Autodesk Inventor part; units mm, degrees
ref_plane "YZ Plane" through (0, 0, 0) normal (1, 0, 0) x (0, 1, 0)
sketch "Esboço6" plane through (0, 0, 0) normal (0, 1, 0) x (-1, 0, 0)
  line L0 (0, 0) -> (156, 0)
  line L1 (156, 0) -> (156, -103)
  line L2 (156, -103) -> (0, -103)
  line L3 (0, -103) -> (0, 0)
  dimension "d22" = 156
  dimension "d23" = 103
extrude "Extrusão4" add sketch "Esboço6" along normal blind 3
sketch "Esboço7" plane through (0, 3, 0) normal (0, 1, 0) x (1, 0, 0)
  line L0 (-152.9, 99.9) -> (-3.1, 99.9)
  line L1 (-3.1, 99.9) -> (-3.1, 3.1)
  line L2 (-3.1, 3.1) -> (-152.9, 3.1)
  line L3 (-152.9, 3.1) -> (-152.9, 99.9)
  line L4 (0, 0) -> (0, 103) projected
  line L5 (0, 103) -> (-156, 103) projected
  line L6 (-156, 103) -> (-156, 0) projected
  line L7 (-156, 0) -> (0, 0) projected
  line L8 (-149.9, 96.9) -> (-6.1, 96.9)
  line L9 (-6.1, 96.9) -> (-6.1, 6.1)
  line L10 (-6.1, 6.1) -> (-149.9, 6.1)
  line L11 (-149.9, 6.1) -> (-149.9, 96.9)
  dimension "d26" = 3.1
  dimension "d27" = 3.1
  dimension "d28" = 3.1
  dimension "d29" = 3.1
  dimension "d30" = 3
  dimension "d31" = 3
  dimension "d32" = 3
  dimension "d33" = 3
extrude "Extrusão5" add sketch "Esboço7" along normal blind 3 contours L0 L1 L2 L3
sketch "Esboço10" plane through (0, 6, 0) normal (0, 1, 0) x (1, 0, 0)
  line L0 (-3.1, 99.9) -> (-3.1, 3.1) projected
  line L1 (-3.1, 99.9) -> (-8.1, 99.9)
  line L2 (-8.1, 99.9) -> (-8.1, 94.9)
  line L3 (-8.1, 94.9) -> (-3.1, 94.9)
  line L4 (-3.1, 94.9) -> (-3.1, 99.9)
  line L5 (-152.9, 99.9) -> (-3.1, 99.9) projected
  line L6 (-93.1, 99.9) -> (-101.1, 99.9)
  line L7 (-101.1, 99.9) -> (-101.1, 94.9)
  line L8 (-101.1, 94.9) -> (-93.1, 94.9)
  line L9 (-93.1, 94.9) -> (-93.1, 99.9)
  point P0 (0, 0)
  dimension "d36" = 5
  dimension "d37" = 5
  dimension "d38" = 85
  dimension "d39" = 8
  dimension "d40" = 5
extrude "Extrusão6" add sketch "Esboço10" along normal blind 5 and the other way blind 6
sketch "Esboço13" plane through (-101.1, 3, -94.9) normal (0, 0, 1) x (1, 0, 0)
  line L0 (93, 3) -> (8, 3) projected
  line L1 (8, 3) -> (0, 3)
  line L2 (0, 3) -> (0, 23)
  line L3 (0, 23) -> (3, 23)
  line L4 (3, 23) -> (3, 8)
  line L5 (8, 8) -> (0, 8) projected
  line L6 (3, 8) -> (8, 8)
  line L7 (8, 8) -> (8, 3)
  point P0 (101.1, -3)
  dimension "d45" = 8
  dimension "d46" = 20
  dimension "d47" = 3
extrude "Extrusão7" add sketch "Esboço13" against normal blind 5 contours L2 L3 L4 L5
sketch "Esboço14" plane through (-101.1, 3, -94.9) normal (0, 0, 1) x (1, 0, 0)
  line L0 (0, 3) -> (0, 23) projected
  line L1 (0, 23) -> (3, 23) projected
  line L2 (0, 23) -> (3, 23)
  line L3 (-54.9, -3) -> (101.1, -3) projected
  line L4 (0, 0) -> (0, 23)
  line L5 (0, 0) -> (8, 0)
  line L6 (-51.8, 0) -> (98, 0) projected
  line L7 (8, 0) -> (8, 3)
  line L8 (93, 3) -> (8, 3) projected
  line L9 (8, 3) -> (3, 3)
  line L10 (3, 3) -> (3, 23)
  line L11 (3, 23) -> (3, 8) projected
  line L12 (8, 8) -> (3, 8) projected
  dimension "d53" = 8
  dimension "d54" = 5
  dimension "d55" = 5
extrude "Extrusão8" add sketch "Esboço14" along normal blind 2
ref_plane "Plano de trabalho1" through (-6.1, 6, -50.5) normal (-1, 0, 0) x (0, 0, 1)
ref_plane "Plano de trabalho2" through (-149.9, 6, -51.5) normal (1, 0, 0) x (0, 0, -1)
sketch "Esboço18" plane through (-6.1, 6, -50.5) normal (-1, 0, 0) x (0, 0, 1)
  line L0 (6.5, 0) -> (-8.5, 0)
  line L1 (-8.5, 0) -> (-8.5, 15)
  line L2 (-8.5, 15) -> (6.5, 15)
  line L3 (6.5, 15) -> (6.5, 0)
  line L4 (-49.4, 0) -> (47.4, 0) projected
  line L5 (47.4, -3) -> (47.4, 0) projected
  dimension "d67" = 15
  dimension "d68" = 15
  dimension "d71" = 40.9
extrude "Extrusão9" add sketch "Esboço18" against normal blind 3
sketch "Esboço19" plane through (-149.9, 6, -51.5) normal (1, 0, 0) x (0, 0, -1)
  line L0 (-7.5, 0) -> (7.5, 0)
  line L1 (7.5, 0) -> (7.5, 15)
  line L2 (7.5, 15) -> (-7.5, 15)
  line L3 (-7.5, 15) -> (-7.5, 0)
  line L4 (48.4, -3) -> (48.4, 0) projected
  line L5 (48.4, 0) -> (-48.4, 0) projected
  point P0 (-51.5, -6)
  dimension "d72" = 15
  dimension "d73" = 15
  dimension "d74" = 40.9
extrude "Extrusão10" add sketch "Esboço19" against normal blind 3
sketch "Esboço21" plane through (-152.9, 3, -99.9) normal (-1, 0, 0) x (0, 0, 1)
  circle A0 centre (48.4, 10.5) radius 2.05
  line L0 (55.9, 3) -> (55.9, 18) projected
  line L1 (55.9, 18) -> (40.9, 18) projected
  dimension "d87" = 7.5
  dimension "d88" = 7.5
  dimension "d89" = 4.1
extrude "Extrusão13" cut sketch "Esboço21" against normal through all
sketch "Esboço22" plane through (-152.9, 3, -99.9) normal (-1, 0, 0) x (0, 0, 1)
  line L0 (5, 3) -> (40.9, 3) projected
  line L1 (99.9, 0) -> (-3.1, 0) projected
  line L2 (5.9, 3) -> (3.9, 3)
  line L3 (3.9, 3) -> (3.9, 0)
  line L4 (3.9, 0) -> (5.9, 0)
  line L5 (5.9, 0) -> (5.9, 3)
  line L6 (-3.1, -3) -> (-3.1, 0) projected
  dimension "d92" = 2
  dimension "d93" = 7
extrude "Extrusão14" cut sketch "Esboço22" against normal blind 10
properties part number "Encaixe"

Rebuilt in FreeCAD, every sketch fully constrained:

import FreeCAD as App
import Part
import Sketcher
from FreeCAD import Vector
Q = App.Units.Quantity

doc = App.newDocument("Part")
body = doc.addObject("PartDesign::Body", "Body")

sketch1 = body.newObject("Sketcher::SketchObject", "Sketch")
sketch1.AttachmentSupport = (doc.getObject("XZ_Plane"), [""])
sketch1.MapMode = "FlatFace"
sketch1.addGeometry(Part.LineSegment(Vector(-156, 0, 0), Vector(0, 0, 0)), False)
sketch1.addGeometry(Part.LineSegment(Vector(0, 0, 0), Vector(0, -103, 0)), False)
sketch1.addGeometry(Part.LineSegment(Vector(0, -103, 0), Vector(-156, -103, 0)), False)
sketch1.addGeometry(Part.LineSegment(Vector(-156, -103, 0), Vector(-156, 0, 0)), False)
sketch1.addConstraint(Sketcher.Constraint("Coincident", 0, 2, 1, 1))
sketch1.addConstraint(Sketcher.Constraint("Coincident", 1, 2, 2, 1))
sketch1.addConstraint(Sketcher.Constraint("Coincident", 2, 2, 3, 1))
sketch1.addConstraint(Sketcher.Constraint("Coincident", 3, 2, 0, 1))
sketch1.addConstraint(Sketcher.Constraint("Horizontal", 0))
sketch1.addConstraint(Sketcher.Constraint("Vertical", 1))
sketch1.addConstraint(Sketcher.Constraint("Horizontal", 2))
sketch1.addConstraint(Sketcher.Constraint("Vertical", 3))
sketch1.addConstraint(Sketcher.Constraint("Coincident", 0, 2, -1, 1))
sketch1.addConstraint(Sketcher.Constraint("DistanceX", 0, 1, 0, 2, Q("156 mm")))
sketch1.addConstraint(Sketcher.Constraint("DistanceY", 1, 2, 1, 1, Q("103 mm")))
pad1 = body.newObject("PartDesign::Pad", "Pad")
pad1.Profile = sketch1
pad1.Length = 3
pad1.Reversed = True

sketch2 = body.newObject("Sketcher::SketchObject", "Sketch001")
sketch2.AttachmentSupport = (doc.getObject("XZ_Plane"), [""])
sketch2.MapMode = "FlatFace"
sketch2.AttachmentOffset = App.Placement(Vector(0, 0, -3), App.Rotation())
sketch2.addGeometry(Part.LineSegment(Vector(-3, -100, 0), Vector(-153, -100, 0)), False)
sketch2.addGeometry(Part.LineSegment(Vector(-153, -100, 0), Vector(-153, -3, 0)), False)
sketch2.addGeometry(Part.LineSegment(Vector(-153, -3, 0), Vector(-3, -3, 0)), False)
sketch2.addGeometry(Part.LineSegment(Vector(-3, -3, 0), Vector(-3, -100, 0)), False)
sketch2.addGeometry(Part.LineSegment(Vector(-150, -6, 0), Vector(-150, -97, 0)), False)
sketch2.addGeometry(Part.LineSegment(Vector(-150, -97, 0), Vector(-6, -97, 0)), False)
sketch2.addGeometry(Part.LineSegment(Vector(-6, -97, 0), Vector(-6, -6, 0)), False)
sketch2.addGeometry(Part.LineSegment(Vector(-6, -6, 0), Vector(-150, -6, 0)), False)
sketch2.addConstraint(Sketcher.Constraint("Coincident", 0, 2, 1, 1))
sketch2.addConstraint(Sketcher.Constraint("Coincident", 1, 2, 2, 1))
sketch2.addConstraint(Sketcher.Constraint("Coincident", 2, 2, 3, 1))
sketch2.addConstraint(Sketcher.Constraint("Coincident", 3, 2, 0, 1))
sketch2.addConstraint(Sketcher.Constraint("Coincident", 4, 2, 5, 1))
sketch2.addConstraint(Sketcher.Constraint("Coincident", 5, 2, 6, 1))
sketch2.addConstraint(Sketcher.Constraint("Coincident", 6, 2, 7, 1))
sketch2.addConstraint(Sketcher.Constraint("Coincident", 7, 2, 4, 1))
sketch2.addConstraint(Sketcher.Constraint("Horizontal", 0))
sketch2.addConstraint(Sketcher.Constraint("Vertical", 1))
sketch2.addConstraint(Sketcher.Constraint("Horizontal", 2))
sketch2.addConstraint(Sketcher.Constraint("Vertical", 3))
sketch2.addConstraint(Sketcher.Constraint("Vertical", 4))
sketch2.addConstraint(Sketcher.Constraint("Horizontal", 5))
sketch2.addConstraint(Sketcher.Constraint("Vertical", 6))
sketch2.addConstraint(Sketcher.Constraint("Horizontal", 7))
sketch2.addConstraint(Sketcher.Constraint("DistanceX", 0, 2, 4, 2, Q("3 mm")))
sketch2.addConstraint(Sketcher.Constraint("DistanceY", 0, 2, 4, 2, Q("3 mm")))
sketch2.addConstraint(Sketcher.Constraint("DistanceX", 5, 2, 3, 2, Q("3 mm")))
sketch2.addConstraint(Sketcher.Constraint("DistanceY", 6, 2, 2, 2, Q("3 mm")))
sketch2.addConstraint(Sketcher.Constraint("DistanceY", 1, 2, -1, 1, Q("3.1 mm")))
sketch2.addConstraint(Sketcher.Constraint("DistanceX", 2, 2, -1, 1, Q("3.1 mm")))
sketch2.addConstraint(Sketcher.Constraint("DistanceX", 0, 2, 0, 1, Q("149.8 mm")))
sketch2.addConstraint(Sketcher.Constraint("DistanceY", 1, 1, 1, 2, Q("96.8 mm")))
pad2 = body.newObject("PartDesign::Pad", "Pad001")
pad2.Profile = sketch2
pad2.Length = 3
pad2.Reversed = True

sketch3 = body.newObject("Sketcher::SketchObject", "Sketch002")
sketch3.AttachmentSupport = (doc.getObject("XZ_Plane"), [""])
sketch3.MapMode = "FlatFace"
sketch3.AttachmentOffset = App.Placement(Vector(0, 0, -6), App.Rotation())
sketch3.addGeometry(Part.LineSegment(Vector(-93, -95, 0), Vector(-93, -100, 0)), False)
sketch3.addGeometry(Part.LineSegment(Vector(-93, -100, 0), Vector(-101, -100, 0)), False)
sketch3.addGeometry(Part.LineSegment(Vector(-101, -100, 0), Vector(-101, -95, 0)), False)
sketch3.addGeometry(Part.LineSegment(Vector(-101, -95, 0), Vector(-93, -95, 0)), False)
sketch3.addGeometry(Part.LineSegment(Vector(-3, -95, 0), Vector(-3, -100, 0)), False)
sketch3.addGeometry(Part.LineSegment(Vector(-3, -100, 0), Vector(-8, -100, 0)), False)
sketch3.addGeometry(Part.LineSegment(Vector(-8, -100, 0), Vector(-8, -95, 0)), False)
sketch3.addGeometry(Part.LineSegment(Vector(-8, -95, 0), Vector(-3, -95, 0)), False)
sketch3.addConstraint(Sketcher.Constraint("Coincident", 0, 2, 1, 1))
sketch3.addConstraint(Sketcher.Constraint("Coincident", 1, 2, 2, 1))
sketch3.addConstraint(Sketcher.Constraint("Coincident", 2, 2, 3, 1))
sketch3.addConstraint(Sketcher.Constraint("Coincident", 3, 2, 0, 1))
sketch3.addConstraint(Sketcher.Constraint("Coincident", 4, 2, 5, 1))
sketch3.addConstraint(Sketcher.Constraint("Coincident", 5, 2, 6, 1))
sketch3.addConstraint(Sketcher.Constraint("Coincident", 6, 2, 7, 1))
sketch3.addConstraint(Sketcher.Constraint("Coincident", 7, 2, 4, 1))
sketch3.addConstraint(Sketcher.Constraint("Vertical", 0))
sketch3.addConstraint(Sketcher.Constraint("Horizontal", 1))
sketch3.addConstraint(Sketcher.Constraint("Vertical", 2))
sketch3.addConstraint(Sketcher.Constraint("Horizontal", 3))
sketch3.addConstraint(Sketcher.Constraint("Vertical", 4))
sketch3.addConstraint(Sketcher.Constraint("Horizontal", 5))
sketch3.addConstraint(Sketcher.Constraint("Vertical", 6))
sketch3.addConstraint(Sketcher.Constraint("Horizontal", 7))
sketch3.addConstraint(Sketcher.Constraint("Horizontal", 1, 2, 4, 2))
sketch3.addConstraint(Sketcher.Constraint("Horizontal", 3, 2, 6, 2))
sketch3.addConstraint(Sketcher.Constraint("Equal", 7, 0))
sketch3.addConstraint(Sketcher.Constraint("DistanceX", 1, 2, 1, 1, Q("8 mm")))
sketch3.addConstraint(Sketcher.Constraint("DistanceX", 5, 2, 5, 1, Q("5 mm")))
sketch3.addConstraint(Sketcher.Constraint("DistanceX", 0, 2, 5, 2, Q("85 mm")))
sketch3.addConstraint(Sketcher.Constraint("DistanceX", 0, 2, -1, 1, Q("93.1 mm")))
sketch3.addConstraint(Sketcher.Constraint("DistanceY", 0, 2, -1, 1, Q("99.9 mm")))
pad3 = body.newObject("PartDesign::Pad", "Pad002")
pad3.Profile = sketch3
pad3.Type = "TwoLengths"
pad3.Length = 5
pad3.Length2 = 6
pad3.Reversed = True

sketch4 = body.newObject("Sketcher::SketchObject", "Sketch003")
sketch4.AttachmentSupport = (doc.getObject("XY_Plane"), [""])
sketch4.MapMode = "FlatFace"
sketch4.AttachmentOffset = App.Placement(Vector(0, 0, -94.9), App.Rotation())
sketch4.addGeometry(Part.LineSegment(Vector(-101.1, 26, 0), Vector(-101.1, 11, 0)), False)
sketch4.addGeometry(Part.LineSegment(Vector(-101.1, 11, 0), Vector(-98.1, 11, 0)), False)
sketch4.addGeometry(Part.LineSegment(Vector(-98.1, 11, 0), Vector(-98.1, 26, 0)), False)
sketch4.addGeometry(Part.LineSegment(Vector(-98.1, 26, 0), Vector(-101.1, 26, 0)), False)
sketch4.addConstraint(Sketcher.Constraint("Coincident", 0, 2, 1, 1))
sketch4.addConstraint(Sketcher.Constraint("Coincident", 1, 2, 2, 1))
sketch4.addConstraint(Sketcher.Constraint("Coincident", 2, 2, 3, 1))
sketch4.addConstraint(Sketcher.Constraint("Coincident", 3, 2, 0, 1))
sketch4.addConstraint(Sketcher.Constraint("Vertical", 0))
sketch4.addConstraint(Sketcher.Constraint("Horizontal", 1))
sketch4.addConstraint(Sketcher.Constraint("Vertical", 2))
sketch4.addConstraint(Sketcher.Constraint("Horizontal", 3))
sketch4.addConstraint(Sketcher.Constraint("DistanceX", 1, 1, 1, 2, Q("3 mm")))
sketch4.addConstraint(Sketcher.Constraint("DistanceY", 0, 2, 0, 1, Q("15 mm")))
sketch4.addConstraint(Sketcher.Constraint("DistanceY", -1, 1, 0, 2, Q("11 mm")))
sketch4.addConstraint(Sketcher.Constraint("DistanceX", 0, 2, -1, 1, Q("101.1 mm")))
pad4 = body.newObject("PartDesign::Pad", "Pad003")
pad4.Profile = sketch4
pad4.Length = 5
pad4.Reversed = True

sketch5 = body.newObject("Sketcher::SketchObject", "Sketch004")
sketch5.AttachmentSupport = (doc.getObject("XY_Plane"), [""])
sketch5.MapMode = "FlatFace"
sketch5.AttachmentOffset = App.Placement(Vector(0, 0, -94.9), App.Rotation())
sketch5.addGeometry(Part.LineSegment(Vector(-101.1, 26, 0), Vector(-101.1, 3, 0)), False)
sketch5.addGeometry(Part.LineSegment(Vector(-101.1, 3, 0), Vector(-93.1, 3, 0)), False)
sketch5.addGeometry(Part.LineSegment(Vector(-93.1, 3, 0), Vector(-93.1, 6, 0)), False)
sketch5.addGeometry(Part.LineSegment(Vector(-93.1, 6, 0), Vector(-98.1, 6, 0)), False)
sketch5.addGeometry(Part.LineSegment(Vector(-98.1, 6, 0), Vector(-98.1, 26, 0)), False)
sketch5.addGeometry(Part.LineSegment(Vector(-98.1, 26, 0), Vector(-101.1, 26, 0)), False)
sketch5.addConstraint(Sketcher.Constraint("Coincident", 0, 2, 1, 1))
sketch5.addConstraint(Sketcher.Constraint("Coincident", 1, 2, 2, 1))
sketch5.addConstraint(Sketcher.Constraint("Coincident", 2, 2, 3, 1))
sketch5.addConstraint(Sketcher.Constraint("Coincident", 3, 2, 4, 1))
sketch5.addConstraint(Sketcher.Constraint("Coincident", 4, 2, 5, 1))
sketch5.addConstraint(Sketcher.Constraint("Coincident", 5, 2, 0, 1))
sketch5.addConstraint(Sketcher.Constraint("Vertical", 0))
sketch5.addConstraint(Sketcher.Constraint("Horizontal", 1))
sketch5.addConstraint(Sketcher.Constraint("Vertical", 2))
sketch5.addConstraint(Sketcher.Constraint("Horizontal", 3))
sketch5.addConstraint(Sketcher.Constraint("Vertical", 4))
sketch5.addConstraint(Sketcher.Constraint("Horizontal", 5))
sketch5.addConstraint(Sketcher.Constraint("Equal", 5, 2))
sketch5.addConstraint(Sketcher.Constraint("DistanceX", 1, 1, 1, 2, Q("8 mm")))
sketch5.addConstraint(Sketcher.Constraint("DistanceX", 3, 2, 3, 1, Q("5 mm")))
sketch5.addConstraint(Sketcher.Constraint("DistanceY", 0, 2, 0, 1, Q("23 mm")))
sketch5.addConstraint(Sketcher.Constraint("DistanceY", -1, 1, 0, 2, Q("3 mm")))
sketch5.addConstraint(Sketcher.Constraint("DistanceX", 0, 2, -1, 1, Q("101.1 mm")))
pad5 = body.newObject("PartDesign::Pad", "Pad004")
pad5.Profile = sketch5
pad5.Length = 2

sketch6 = body.newObject("Sketcher::SketchObject", "Sketch005")
sketch6.AttachmentSupport = (doc.getObject("YZ_Plane"), [""])
sketch6.MapMode = "FlatFace"
sketch6.AttachmentOffset = App.Placement(Vector(0, 0, -6.1), App.Rotation())
sketch6.addGeometry(Part.LineSegment(Vector(6, -59, 0), Vector(6, -44, 0)), False)
sketch6.addGeometry(Part.LineSegment(Vector(6, -44, 0), Vector(21, -44, 0)), False)
sketch6.addGeometry(Part.LineSegment(Vector(21, -44, 0), Vector(21, -59, 0)), False)
sketch6.addGeometry(Part.LineSegment(Vector(21, -59, 0), Vector(6, -59, 0)), False)
sketch6.addConstraint(Sketcher.Constraint("Coincident", 0, 2, 1, 1))
sketch6.addConstraint(Sketcher.Constraint("Coincident", 1, 2, 2, 1))
sketch6.addConstraint(Sketcher.Constraint("Coincident", 2, 2, 3, 1))
sketch6.addConstraint(Sketcher.Constraint("Coincident", 3, 2, 0, 1))
sketch6.addConstraint(Sketcher.Constraint("Vertical", 0))
sketch6.addConstraint(Sketcher.Constraint("Horizontal", 1))
sketch6.addConstraint(Sketcher.Constraint("Vertical", 2))
sketch6.addConstraint(Sketcher.Constraint("Horizontal", 3))
sketch6.addConstraint(Sketcher.Constraint("Equal", 3, 0))
sketch6.addConstraint(Sketcher.Constraint("DistanceX", 1, 1, 1, 2, Q("15 mm")))
sketch6.addConstraint(Sketcher.Constraint("DistanceX", -1, 1, 0, 2, Q("6 mm")))
sketch6.addConstraint(Sketcher.Constraint("DistanceY", 0, 2, -1, 1, Q("44 mm")))
pad6 = body.newObject("PartDesign::Pad", "Pad005")
pad6.Profile = sketch6
pad6.Length = 3

sketch7 = body.newObject("Sketcher::SketchObject", "Sketch006")
sketch7.AttachmentSupport = (doc.getObject("YZ_Plane"), [""])
sketch7.MapMode = "FlatFace"
sketch7.AttachmentOffset = App.Placement(Vector(0, 0, -149.9), App.Rotation())
sketch7.addGeometry(Part.LineSegment(Vector(21, -44, 0), Vector(6, -44, 0)), False)
sketch7.addGeometry(Part.LineSegment(Vector(6, -44, 0), Vector(6, -59, 0)), False)
sketch7.addGeometry(Part.LineSegment(Vector(6, -59, 0), Vector(21, -59, 0)), False)
sketch7.addGeometry(Part.LineSegment(Vector(21, -59, 0), Vector(21, -44, 0)), False)
sketch7.addConstraint(Sketcher.Constraint("Coincident", 0, 2, 1, 1))
sketch7.addConstraint(Sketcher.Constraint("Coincident", 1, 2, 2, 1))
sketch7.addConstraint(Sketcher.Constraint("Coincident", 2, 2, 3, 1))
sketch7.addConstraint(Sketcher.Constraint("Coincident", 3, 2, 0, 1))
sketch7.addConstraint(Sketcher.Constraint("Horizontal", 0))
sketch7.addConstraint(Sketcher.Constraint("Vertical", 1))
sketch7.addConstraint(Sketcher.Constraint("Horizontal", 2))
sketch7.addConstraint(Sketcher.Constraint("Vertical", 3))
sketch7.addConstraint(Sketcher.Constraint("Equal", 2, 1))
sketch7.addConstraint(Sketcher.Constraint("DistanceX", 0, 2, 0, 1, Q("15 mm")))
sketch7.addConstraint(Sketcher.Constraint("DistanceX", -1, 1, 0, 2, Q("6 mm")))
sketch7.addConstraint(Sketcher.Constraint("DistanceY", 0, 2, -1, 1, Q("44 mm")))
pad7 = body.newObject("PartDesign::Pad", "Pad006")
pad7.Profile = sketch7
pad7.Length = 3
pad7.Reversed = True

sketch8 = body.newObject("Sketcher::SketchObject", "Sketch007")
sketch8.AttachmentSupport = (doc.getObject("YZ_Plane"), [""])
sketch8.MapMode = "FlatFace"
sketch8.AttachmentOffset = App.Placement(Vector(0, 0, -152.9), App.Rotation())
sketch8.addGeometry(Part.Circle(Vector(13.5, -51.5, 0), Vector(0, 0, 1), 2), False)
sketch8.addConstraint(Sketcher.Constraint("Diameter", 0, Q("4.1 mm")))
sketch8.addConstraint(Sketcher.Constraint("DistanceX", -1, 1, 0, 3, Q("13.5 mm")))
sketch8.addConstraint(Sketcher.Constraint("DistanceY", 0, 3, -1, 1, Q("51.5 mm")))
pocket1 = body.newObject("PartDesign::Pocket", "Pocket")
pocket1.Profile = sketch8
pocket1.Type = "ThroughAll"
pocket1.Reversed = True

sketch9 = body.newObject("Sketcher::SketchObject", "Sketch008")
sketch9.AttachmentSupport = (doc.getObject("YZ_Plane"), [""])
sketch9.MapMode = "FlatFace"
sketch9.AttachmentOffset = App.Placement(Vector(0, 0, -152.9), App.Rotation())
sketch9.addGeometry(Part.LineSegment(Vector(6, -94, 0), Vector(6, -96, 0)), False)
sketch9.addGeometry(Part.LineSegment(Vector(6, -96, 0), Vector(3, -96, 0)), False)
sketch9.addGeometry(Part.LineSegment(Vector(3, -96, 0), Vector(3, -94, 0)), False)
sketch9.addGeometry(Part.LineSegment(Vector(3, -94, 0), Vector(6, -94, 0)), False)
sketch9.addConstraint(Sketcher.Constraint("Coincident", 0, 2, 1, 1))
sketch9.addConstraint(Sketcher.Constraint("Coincident", 1, 2, 2, 1))
sketch9.addConstraint(Sketcher.Constraint("Coincident", 2, 2, 3, 1))
sketch9.addConstraint(Sketcher.Constraint("Coincident", 3, 2, 0, 1))
sketch9.addConstraint(Sketcher.Constraint("Vertical", 0))
sketch9.addConstraint(Sketcher.Constraint("Horizontal", 1))
sketch9.addConstraint(Sketcher.Constraint("Vertical", 2))
sketch9.addConstraint(Sketcher.Constraint("Horizontal", 3))
sketch9.addConstraint(Sketcher.Constraint("DistanceY", 0, 2, 0, 1, Q("2 mm")))
sketch9.addConstraint(Sketcher.Constraint("DistanceX", 1, 2, 1, 1, Q("3 mm")))
sketch9.addConstraint(Sketcher.Constraint("DistanceX", -1, 1, 0, 2, Q("6 mm")))
sketch9.addConstraint(Sketcher.Constraint("DistanceY", 0, 2, -1, 1, Q("96 mm")))
pocket2 = body.newObject("PartDesign::Pocket", "Pocket001")
pocket2.Profile = sketch9
pocket2.Length = 10
pocket2.Reversed = True

doc.recompute()
